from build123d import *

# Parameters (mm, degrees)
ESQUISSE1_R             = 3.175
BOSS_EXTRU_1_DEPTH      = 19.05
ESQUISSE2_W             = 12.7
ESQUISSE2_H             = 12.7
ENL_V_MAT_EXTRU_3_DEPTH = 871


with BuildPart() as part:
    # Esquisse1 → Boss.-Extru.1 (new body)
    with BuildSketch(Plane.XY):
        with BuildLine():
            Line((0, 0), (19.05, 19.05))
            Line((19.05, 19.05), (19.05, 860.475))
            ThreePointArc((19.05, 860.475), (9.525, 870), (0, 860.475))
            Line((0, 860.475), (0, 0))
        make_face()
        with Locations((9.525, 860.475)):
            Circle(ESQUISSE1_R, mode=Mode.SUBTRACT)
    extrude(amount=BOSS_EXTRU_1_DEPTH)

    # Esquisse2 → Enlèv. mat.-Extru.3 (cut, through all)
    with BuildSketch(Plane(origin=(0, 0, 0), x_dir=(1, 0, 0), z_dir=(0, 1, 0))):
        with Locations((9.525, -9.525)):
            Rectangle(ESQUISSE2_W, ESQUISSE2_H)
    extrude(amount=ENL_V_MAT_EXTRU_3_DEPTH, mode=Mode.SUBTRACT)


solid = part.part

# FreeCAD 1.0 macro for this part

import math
import FreeCAD as App
import Part
import Sketcher
Q = App.Units.Quantity

doc = App.newDocument("Part")
body = doc.addObject("PartDesign::Body", "Body")

# Sketch on XY plane
sketch1 = body.newObject("Sketcher::SketchObject", "Sketch")
sketch1.AttachmentSupport = (doc.getObject("XY_Plane"), [""])
sketch1.MapMode = "FlatFace"
sketch1.addGeometry(Part.LineSegment(App.Vector(0, 0, 0), App.Vector(19.1, 19.1, 0)), False)
sketch1.addGeometry(Part.LineSegment(App.Vector(19.1, 19.1, 0), App.Vector(19.1, 860.5, 0)), False)
sketch1.addGeometry(Part.ArcOfCircle(Part.Circle(App.Vector(9.5, 860.5, 0), App.Vector(0, 0, 1), 9.5), math.radians(0), math.radians(180)), False)
sketch1.addGeometry(Part.LineSegment(App.Vector(0, 860.5, 0), App.Vector(0, 0, 0)), False)
sketch1.addGeometry(Part.Circle(App.Vector(9.5, 860.5, 0), App.Vector(0, 0, 1), 3.2), False)
sketch1.addConstraint(Sketcher.Constraint("Coincident", 0, 2, 1, 1))
sketch1.addConstraint(Sketcher.Constraint("Tangent", 1, 2, 2, 1))
sketch1.addConstraint(Sketcher.Constraint("Tangent", 2, 2, 3, 1))
sketch1.addConstraint(Sketcher.Constraint("Coincident", 3, 2, 0, 1))
sketch1.addConstraint(Sketcher.Constraint("Vertical", 1))
sketch1.addConstraint(Sketcher.Constraint("Vertical", 3))
sketch1.addConstraint(Sketcher.Constraint("Coincident", 3, 2, -1, 1))
sketch1.addConstraint(Sketcher.Constraint("Coincident", 4, 3, 2, 3))
sketch1.addConstraint(Sketcher.Constraint("Diameter", 4, Q("0.25 in")))
sketch1.addConstraint(Sketcher.Constraint("Angle", 0, Q("45 deg")))
sketch1.addConstraint(Sketcher.Constraint("Radius", 2, Q("0.375 in")))
sketch1.addConstraint(Sketcher.Constraint("DistanceY", 1, 1, 1, 2, 841.425))
pad1 = body.newObject("PartDesign::Pad", "Pad")
pad1.Profile = sketch1
pad1.Length = Q("0.75 in")

# Sketch on XZ plane
sketch2 = body.newObject("Sketcher::SketchObject", "Sketch001")
sketch2.AttachmentSupport = (doc.getObject("XZ_Plane"), [""])
sketch2.MapMode = "FlatFace"
sketch2.addGeometry(Part.LineSegment(App.Vector(3, 3, 0), App.Vector(3, 16, 0)), False)
sketch2.addGeometry(Part.LineSegment(App.Vector(3, 16, 0), App.Vector(16, 16, 0)), False)
sketch2.addGeometry(Part.LineSegment(App.Vector(16, 16, 0), App.Vector(16, 3, 0)), False)
sketch2.addGeometry(Part.LineSegment(App.Vector(16, 3, 0), App.Vector(3, 3, 0)), False)
sketch2.addConstraint(Sketcher.Constraint("Coincident", 0, 2, 1, 1))
sketch2.addConstraint(Sketcher.Constraint("Coincident", 1, 2, 2, 1))
sketch2.addConstraint(Sketcher.Constraint("Coincident", 2, 2, 3, 1))
sketch2.addConstraint(Sketcher.Constraint("Coincident", 3, 2, 0, 1))
sketch2.addConstraint(Sketcher.Constraint("Vertical", 0))
sketch2.addConstraint(Sketcher.Constraint("Horizontal", 1))
sketch2.addConstraint(Sketcher.Constraint("Vertical", 2))
sketch2.addConstraint(Sketcher.Constraint("Horizontal", 3))
sketch2.addConstraint(Sketcher.Constraint("Equal", 3, 0))
sketch2.addConstraint(Sketcher.Constraint("DistanceX", 1, 1, 1, 2, Q("0.5 in")))
sketch2.addConstraint(Sketcher.Constraint("DistanceX", -1, 1, 0, 2, Q("0.125 in")))
sketch2.addConstraint(Sketcher.Constraint("DistanceY", -1, 1, 0, 2, Q("0.625 in")))
pocket1 = body.newObject("PartDesign::Pocket", "Pocket")
pocket1.Profile = sketch2
pocket1.Type = "ThroughAll"

doc.recompute()
